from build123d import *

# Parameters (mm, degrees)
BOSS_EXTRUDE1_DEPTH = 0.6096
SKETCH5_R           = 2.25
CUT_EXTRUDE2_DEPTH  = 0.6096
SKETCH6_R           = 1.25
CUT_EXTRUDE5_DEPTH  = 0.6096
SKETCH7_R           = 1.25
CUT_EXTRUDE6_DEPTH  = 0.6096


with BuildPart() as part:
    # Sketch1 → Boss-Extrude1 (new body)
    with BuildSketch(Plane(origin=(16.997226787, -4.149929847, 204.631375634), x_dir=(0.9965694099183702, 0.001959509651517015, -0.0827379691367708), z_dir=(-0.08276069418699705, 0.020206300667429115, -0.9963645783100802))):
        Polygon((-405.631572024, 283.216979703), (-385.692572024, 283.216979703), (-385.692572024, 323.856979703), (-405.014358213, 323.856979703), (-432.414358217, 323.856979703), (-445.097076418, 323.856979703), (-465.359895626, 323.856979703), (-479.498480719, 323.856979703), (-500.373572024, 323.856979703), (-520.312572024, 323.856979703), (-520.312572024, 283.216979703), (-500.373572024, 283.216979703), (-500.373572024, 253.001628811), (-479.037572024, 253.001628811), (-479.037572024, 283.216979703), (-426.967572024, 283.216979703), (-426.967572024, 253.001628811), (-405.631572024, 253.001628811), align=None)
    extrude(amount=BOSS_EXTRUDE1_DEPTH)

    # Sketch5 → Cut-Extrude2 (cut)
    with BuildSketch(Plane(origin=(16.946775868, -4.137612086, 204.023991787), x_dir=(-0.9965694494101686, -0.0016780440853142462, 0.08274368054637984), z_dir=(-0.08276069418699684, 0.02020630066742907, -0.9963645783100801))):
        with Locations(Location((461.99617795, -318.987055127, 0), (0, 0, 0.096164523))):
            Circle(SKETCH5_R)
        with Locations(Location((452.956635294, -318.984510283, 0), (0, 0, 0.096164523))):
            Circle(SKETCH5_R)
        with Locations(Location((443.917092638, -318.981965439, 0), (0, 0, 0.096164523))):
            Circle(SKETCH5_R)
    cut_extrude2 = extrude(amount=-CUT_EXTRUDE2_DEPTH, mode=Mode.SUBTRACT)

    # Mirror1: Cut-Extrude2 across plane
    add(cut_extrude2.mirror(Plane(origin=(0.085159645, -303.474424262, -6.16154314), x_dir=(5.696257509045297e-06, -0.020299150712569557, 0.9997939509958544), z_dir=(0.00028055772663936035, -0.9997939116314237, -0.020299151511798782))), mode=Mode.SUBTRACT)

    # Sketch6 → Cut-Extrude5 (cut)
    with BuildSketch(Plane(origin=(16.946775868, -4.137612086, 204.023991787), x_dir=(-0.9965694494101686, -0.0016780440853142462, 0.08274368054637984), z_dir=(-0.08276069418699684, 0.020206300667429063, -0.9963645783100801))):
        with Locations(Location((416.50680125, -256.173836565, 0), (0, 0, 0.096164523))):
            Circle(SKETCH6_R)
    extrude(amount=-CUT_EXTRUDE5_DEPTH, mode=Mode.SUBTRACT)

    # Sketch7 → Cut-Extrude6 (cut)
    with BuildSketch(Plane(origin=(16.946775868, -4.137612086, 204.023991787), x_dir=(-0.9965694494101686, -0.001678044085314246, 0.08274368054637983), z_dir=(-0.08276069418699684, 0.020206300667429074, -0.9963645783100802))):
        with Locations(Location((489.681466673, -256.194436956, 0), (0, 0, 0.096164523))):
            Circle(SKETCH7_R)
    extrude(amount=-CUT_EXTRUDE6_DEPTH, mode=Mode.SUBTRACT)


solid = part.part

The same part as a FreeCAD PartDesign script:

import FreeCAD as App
import Part
import Sketcher
from FreeCAD import Vector
Q = App.Units.Quantity

doc = App.newDocument("Part")
body = doc.addObject("PartDesign::Body", "Body")

# Sketch on an angled plane
sketch1 = doc.addObject("Sketcher::SketchObject", "Sketch")
body.addObject(sketch1)
sketch1.Placement = App.Placement(Vector(16.997227, -4.14993, 204.631376), App.Rotation(Vector(0.99656941, 0.00195951, -0.082737969), Vector(0.000280558, -0.999793911, -0.020299152), Vector(-0.082760694, 0.020206301, -0.996364578), "ZXY"))
sketch1.addGeometry([
    Part.LineSegment(Vector(-406, 283, 0), Vector(-386, 283, 0)),  # 0
    Part.LineSegment(Vector(-386, 283, 0), Vector(-386, 324, 0)),  # 1
    Part.LineSegment(Vector(-386, 324, 0), Vector(-520, 324, 0)),  # 2
    Part.LineSegment(Vector(-520, 324, 0), Vector(-520, 283, 0)),  # 3
    Part.LineSegment(Vector(-520, 283, 0), Vector(-500, 283, 0)),  # 4
    Part.LineSegment(Vector(-500, 283, 0), Vector(-500, 253, 0)),  # 5
    Part.LineSegment(Vector(-500, 253, 0), Vector(-479, 253, 0)),  # 6
    Part.LineSegment(Vector(-479, 253, 0), Vector(-479, 283, 0)),  # 7
    Part.LineSegment(Vector(-479, 283, 0), Vector(-427, 283, 0)),  # 8
    Part.LineSegment(Vector(-427, 283, 0), Vector(-427, 253, 0)),  # 9
    Part.LineSegment(Vector(-427, 253, 0), Vector(-406, 253, 0)),  # 10
    Part.LineSegment(Vector(-406, 253, 0), Vector(-406, 283, 0)),  # 11
], False)
sketch1.addConstraint([
    Sketcher.Constraint("Coincident", 0, 2, 1, 1),
    Sketcher.Constraint("Coincident", 1, 2, 2, 1),
    Sketcher.Constraint("Coincident", 2, 2, 3, 1),
    Sketcher.Constraint("Coincident", 3, 2, 4, 1),
    Sketcher.Constraint("Coincident", 4, 2, 5, 1),
    Sketcher.Constraint("Coincident", 5, 2, 6, 1),
    Sketcher.Constraint("Coincident", 6, 2, 7, 1),
    Sketcher.Constraint("Coincident", 7, 2, 8, 1),
    Sketcher.Constraint("Coincident", 8, 2, 9, 1),
    Sketcher.Constraint("Coincident", 9, 2, 10, 1),
    Sketcher.Constraint("Coincident", 10, 2, 11, 1),
    Sketcher.Constraint("Coincident", 11, 2, 0, 1),
    Sketcher.Constraint("Horizontal", 0),
    Sketcher.Constraint("Vertical", 1),
    Sketcher.Constraint("Horizontal", 2),
    Sketcher.Constraint("Vertical", 3),
    Sketcher.Constraint("Horizontal", 4),
    Sketcher.Constraint("Vertical", 5),
    Sketcher.Constraint("Horizontal", 6),
    Sketcher.Constraint("Vertical", 7),
    Sketcher.Constraint("Horizontal", 8),
    Sketcher.Constraint("Vertical", 9),
    Sketcher.Constraint("Horizontal", 10),
    Sketcher.Constraint("Vertical", 11),
    Sketcher.Constraint("Horizontal", 0, 2, 3, 2),
    Sketcher.Constraint("Horizontal", 4, 2, 7, 2),
    Sketcher.Constraint("Horizontal", 6, 2, 9, 2),
    Sketcher.Constraint("Equal", 0, 4),
    Sketcher.Constraint("Equal", 6, 10),
    Sketcher.Constraint("DistanceX", 2, 2, 2, 1, Q("5.3 in")),
    Sketcher.Constraint("DistanceY", 1, 1, 1, 2, Q("1.6 in")),
    Sketcher.Constraint("DistanceX", 6, 1, 6, 2, Q("0.84 in")),
    Sketcher.Constraint("DistanceX", 8, 1, 8, 2, Q("2.05 in")),
    Sketcher.Constraint("DistanceY", 5, 2, 5, 1, Q("30.215351 mm")),
    Sketcher.Constraint("DistanceY", -1, 1, 0, 2, Q("283.21698 mm")),
    Sketcher.Constraint("DistanceX", 0, 2, -1, 1, Q("385.692572 mm")),
])
pad1 = doc.addObject("PartDesign::Pad", "Pad")
body.addObject(pad1)
pad1.Profile = sketch1
pad1.Length = Q("0.024 in")

# Sketch on an angled plane
sketch2 = doc.addObject("Sketcher::SketchObject", "Sketch001")
body.addObject(sketch2)
sketch2.Placement = App.Placement(Vector(16.946776, -4.137612, 204.023992), App.Rotation(Vector(-0.996569449, -0.001678044, 0.082743681), Vector(0, 0.999794423, 0.020275858), Vector(-0.082760694, 0.020206301, -0.996364578), "ZXY"))
sketch2.addGeometry([
    Part.Circle(Vector(462, -319, 0), Vector(0, 0, 1), 2.2),
    Part.Circle(Vector(453, -319, 0), Vector(0, 0, 1), 2.2),
    Part.Circle(Vector(443.9, -319, 0), Vector(0, 0, 1), 2.2),
], False)
sketch2.addConstraint([
    Sketcher.Constraint("Equal", 0, 1),
    Sketcher.Constraint("Equal", 1, 2),
    Sketcher.Constraint("Diameter", 0, Q("4.5 mm")),
    Sketcher.Constraint("DistanceY", 0, 3, 1, 3, Q("0.0001002 in")),
    Sketcher.Constraint("DistanceY", 1, 3, 2, 3, Q("0.0001002 in")),
    Sketcher.Constraint("DistanceY", 1, 3, -1, 1, Q("318.98451 mm")),
    Sketcher.Constraint("DistanceX", -1, 1, 0, 3, Q("461.996178 mm")),
    Sketcher.Constraint("DistanceX", -1, 1, 1, 3, Q("452.956635 mm")),
    Sketcher.Constraint("DistanceX", -1, 1, 2, 3, Q("443.917092 mm")),
])
pocket1 = doc.addObject("PartDesign::Pocket", "Pocket")
body.addObject(pocket1)
pocket1.Profile = sketch2
pocket1.Length = Q("0.024 in")
doc.recompute()

datumplane = doc.addObject("PartDesign::Plane", "DatumPlane")
body.addObject(datumplane)
datumplane.Placement = App.Placement(Vector(0.08516, -303.474424, -6.161543), App.Rotation(Vector(0, -0.020299153, 0.999793951), Vector(-0.999999961, -0.0002805, -0.000005695), Vector(0.000280558, -0.999793912, -0.020299152), "ZXY"))
mirrored = doc.addObject("PartDesign::Mirrored", "Mirrored")
body.addObject(mirrored)
mirrored.Originals = [pocket1]
mirrored.MirrorPlane = (datumplane, [""])
body.Tip = mirrored

# Sketch on an angled plane
sketch3 = doc.addObject("Sketcher::SketchObject", "Sketch002")
body.addObject(sketch3)
sketch3.Placement = App.Placement(Vector(16.946776, -4.137612, 204.023992), App.Rotation(Vector(-0.996569449, -0.001678044, 0.082743681), Vector(0, 0.999794423, 0.020275858), Vector(-0.082760694, 0.020206301, -0.996364578), "ZXY"))
sketch3.addGeometry(Part.Circle(Vector(416.5, -256.2, 0), Vector(0, 0, 1), 1.2), False)
sketch3.addConstraint([
    Sketcher.Constraint("Diameter", 0, Q("2.5 mm")),
    Sketcher.Constraint("DistanceX", -1, 1, 0, 3, Q("416.506801 mm")),
    Sketcher.Constraint("DistanceY", 0, 3, -1, 1, Q("256.173836 mm")),
])
pocket2 = doc.addObject("PartDesign::Pocket", "Pocket001")
body.addObject(pocket2)
pocket2.Profile = sketch3
pocket2.Length = Q("0.024 in")

# Sketch on an angled plane
sketch4 = doc.addObject("Sketcher::SketchObject", "Sketch003")
body.addObject(sketch4)
sketch4.Placement = App.Placement(Vector(16.946776, -4.137612, 204.023992), App.Rotation(Vector(-0.996569449, -0.001678044, 0.082743681), Vector(0, 0.999794423, 0.020275858), Vector(-0.082760694, 0.020206301, -0.996364578), "ZXY"))
sketch4.addGeometry(Part.Circle(Vector(489.7, -256.2, 0), Vector(0, 0, 1), 1.2), False)
sketch4.addConstraint([
    Sketcher.Constraint("Diameter", 0, Q("2.5 mm")),
    Sketcher.Constraint("DistanceX", -1, 1, 0, 3, Q("489.681466 mm")),
    Sketcher.Constraint("DistanceY", 0, 3, -1, 1, Q("256.194437 mm")),
])
pocket3 = doc.addObject("PartDesign::Pocket", "Pocket002")
body.addObject(pocket3)
pocket3.Profile = sketch4
pocket3.Length = Q("0.024 in")

doc.recompute()
